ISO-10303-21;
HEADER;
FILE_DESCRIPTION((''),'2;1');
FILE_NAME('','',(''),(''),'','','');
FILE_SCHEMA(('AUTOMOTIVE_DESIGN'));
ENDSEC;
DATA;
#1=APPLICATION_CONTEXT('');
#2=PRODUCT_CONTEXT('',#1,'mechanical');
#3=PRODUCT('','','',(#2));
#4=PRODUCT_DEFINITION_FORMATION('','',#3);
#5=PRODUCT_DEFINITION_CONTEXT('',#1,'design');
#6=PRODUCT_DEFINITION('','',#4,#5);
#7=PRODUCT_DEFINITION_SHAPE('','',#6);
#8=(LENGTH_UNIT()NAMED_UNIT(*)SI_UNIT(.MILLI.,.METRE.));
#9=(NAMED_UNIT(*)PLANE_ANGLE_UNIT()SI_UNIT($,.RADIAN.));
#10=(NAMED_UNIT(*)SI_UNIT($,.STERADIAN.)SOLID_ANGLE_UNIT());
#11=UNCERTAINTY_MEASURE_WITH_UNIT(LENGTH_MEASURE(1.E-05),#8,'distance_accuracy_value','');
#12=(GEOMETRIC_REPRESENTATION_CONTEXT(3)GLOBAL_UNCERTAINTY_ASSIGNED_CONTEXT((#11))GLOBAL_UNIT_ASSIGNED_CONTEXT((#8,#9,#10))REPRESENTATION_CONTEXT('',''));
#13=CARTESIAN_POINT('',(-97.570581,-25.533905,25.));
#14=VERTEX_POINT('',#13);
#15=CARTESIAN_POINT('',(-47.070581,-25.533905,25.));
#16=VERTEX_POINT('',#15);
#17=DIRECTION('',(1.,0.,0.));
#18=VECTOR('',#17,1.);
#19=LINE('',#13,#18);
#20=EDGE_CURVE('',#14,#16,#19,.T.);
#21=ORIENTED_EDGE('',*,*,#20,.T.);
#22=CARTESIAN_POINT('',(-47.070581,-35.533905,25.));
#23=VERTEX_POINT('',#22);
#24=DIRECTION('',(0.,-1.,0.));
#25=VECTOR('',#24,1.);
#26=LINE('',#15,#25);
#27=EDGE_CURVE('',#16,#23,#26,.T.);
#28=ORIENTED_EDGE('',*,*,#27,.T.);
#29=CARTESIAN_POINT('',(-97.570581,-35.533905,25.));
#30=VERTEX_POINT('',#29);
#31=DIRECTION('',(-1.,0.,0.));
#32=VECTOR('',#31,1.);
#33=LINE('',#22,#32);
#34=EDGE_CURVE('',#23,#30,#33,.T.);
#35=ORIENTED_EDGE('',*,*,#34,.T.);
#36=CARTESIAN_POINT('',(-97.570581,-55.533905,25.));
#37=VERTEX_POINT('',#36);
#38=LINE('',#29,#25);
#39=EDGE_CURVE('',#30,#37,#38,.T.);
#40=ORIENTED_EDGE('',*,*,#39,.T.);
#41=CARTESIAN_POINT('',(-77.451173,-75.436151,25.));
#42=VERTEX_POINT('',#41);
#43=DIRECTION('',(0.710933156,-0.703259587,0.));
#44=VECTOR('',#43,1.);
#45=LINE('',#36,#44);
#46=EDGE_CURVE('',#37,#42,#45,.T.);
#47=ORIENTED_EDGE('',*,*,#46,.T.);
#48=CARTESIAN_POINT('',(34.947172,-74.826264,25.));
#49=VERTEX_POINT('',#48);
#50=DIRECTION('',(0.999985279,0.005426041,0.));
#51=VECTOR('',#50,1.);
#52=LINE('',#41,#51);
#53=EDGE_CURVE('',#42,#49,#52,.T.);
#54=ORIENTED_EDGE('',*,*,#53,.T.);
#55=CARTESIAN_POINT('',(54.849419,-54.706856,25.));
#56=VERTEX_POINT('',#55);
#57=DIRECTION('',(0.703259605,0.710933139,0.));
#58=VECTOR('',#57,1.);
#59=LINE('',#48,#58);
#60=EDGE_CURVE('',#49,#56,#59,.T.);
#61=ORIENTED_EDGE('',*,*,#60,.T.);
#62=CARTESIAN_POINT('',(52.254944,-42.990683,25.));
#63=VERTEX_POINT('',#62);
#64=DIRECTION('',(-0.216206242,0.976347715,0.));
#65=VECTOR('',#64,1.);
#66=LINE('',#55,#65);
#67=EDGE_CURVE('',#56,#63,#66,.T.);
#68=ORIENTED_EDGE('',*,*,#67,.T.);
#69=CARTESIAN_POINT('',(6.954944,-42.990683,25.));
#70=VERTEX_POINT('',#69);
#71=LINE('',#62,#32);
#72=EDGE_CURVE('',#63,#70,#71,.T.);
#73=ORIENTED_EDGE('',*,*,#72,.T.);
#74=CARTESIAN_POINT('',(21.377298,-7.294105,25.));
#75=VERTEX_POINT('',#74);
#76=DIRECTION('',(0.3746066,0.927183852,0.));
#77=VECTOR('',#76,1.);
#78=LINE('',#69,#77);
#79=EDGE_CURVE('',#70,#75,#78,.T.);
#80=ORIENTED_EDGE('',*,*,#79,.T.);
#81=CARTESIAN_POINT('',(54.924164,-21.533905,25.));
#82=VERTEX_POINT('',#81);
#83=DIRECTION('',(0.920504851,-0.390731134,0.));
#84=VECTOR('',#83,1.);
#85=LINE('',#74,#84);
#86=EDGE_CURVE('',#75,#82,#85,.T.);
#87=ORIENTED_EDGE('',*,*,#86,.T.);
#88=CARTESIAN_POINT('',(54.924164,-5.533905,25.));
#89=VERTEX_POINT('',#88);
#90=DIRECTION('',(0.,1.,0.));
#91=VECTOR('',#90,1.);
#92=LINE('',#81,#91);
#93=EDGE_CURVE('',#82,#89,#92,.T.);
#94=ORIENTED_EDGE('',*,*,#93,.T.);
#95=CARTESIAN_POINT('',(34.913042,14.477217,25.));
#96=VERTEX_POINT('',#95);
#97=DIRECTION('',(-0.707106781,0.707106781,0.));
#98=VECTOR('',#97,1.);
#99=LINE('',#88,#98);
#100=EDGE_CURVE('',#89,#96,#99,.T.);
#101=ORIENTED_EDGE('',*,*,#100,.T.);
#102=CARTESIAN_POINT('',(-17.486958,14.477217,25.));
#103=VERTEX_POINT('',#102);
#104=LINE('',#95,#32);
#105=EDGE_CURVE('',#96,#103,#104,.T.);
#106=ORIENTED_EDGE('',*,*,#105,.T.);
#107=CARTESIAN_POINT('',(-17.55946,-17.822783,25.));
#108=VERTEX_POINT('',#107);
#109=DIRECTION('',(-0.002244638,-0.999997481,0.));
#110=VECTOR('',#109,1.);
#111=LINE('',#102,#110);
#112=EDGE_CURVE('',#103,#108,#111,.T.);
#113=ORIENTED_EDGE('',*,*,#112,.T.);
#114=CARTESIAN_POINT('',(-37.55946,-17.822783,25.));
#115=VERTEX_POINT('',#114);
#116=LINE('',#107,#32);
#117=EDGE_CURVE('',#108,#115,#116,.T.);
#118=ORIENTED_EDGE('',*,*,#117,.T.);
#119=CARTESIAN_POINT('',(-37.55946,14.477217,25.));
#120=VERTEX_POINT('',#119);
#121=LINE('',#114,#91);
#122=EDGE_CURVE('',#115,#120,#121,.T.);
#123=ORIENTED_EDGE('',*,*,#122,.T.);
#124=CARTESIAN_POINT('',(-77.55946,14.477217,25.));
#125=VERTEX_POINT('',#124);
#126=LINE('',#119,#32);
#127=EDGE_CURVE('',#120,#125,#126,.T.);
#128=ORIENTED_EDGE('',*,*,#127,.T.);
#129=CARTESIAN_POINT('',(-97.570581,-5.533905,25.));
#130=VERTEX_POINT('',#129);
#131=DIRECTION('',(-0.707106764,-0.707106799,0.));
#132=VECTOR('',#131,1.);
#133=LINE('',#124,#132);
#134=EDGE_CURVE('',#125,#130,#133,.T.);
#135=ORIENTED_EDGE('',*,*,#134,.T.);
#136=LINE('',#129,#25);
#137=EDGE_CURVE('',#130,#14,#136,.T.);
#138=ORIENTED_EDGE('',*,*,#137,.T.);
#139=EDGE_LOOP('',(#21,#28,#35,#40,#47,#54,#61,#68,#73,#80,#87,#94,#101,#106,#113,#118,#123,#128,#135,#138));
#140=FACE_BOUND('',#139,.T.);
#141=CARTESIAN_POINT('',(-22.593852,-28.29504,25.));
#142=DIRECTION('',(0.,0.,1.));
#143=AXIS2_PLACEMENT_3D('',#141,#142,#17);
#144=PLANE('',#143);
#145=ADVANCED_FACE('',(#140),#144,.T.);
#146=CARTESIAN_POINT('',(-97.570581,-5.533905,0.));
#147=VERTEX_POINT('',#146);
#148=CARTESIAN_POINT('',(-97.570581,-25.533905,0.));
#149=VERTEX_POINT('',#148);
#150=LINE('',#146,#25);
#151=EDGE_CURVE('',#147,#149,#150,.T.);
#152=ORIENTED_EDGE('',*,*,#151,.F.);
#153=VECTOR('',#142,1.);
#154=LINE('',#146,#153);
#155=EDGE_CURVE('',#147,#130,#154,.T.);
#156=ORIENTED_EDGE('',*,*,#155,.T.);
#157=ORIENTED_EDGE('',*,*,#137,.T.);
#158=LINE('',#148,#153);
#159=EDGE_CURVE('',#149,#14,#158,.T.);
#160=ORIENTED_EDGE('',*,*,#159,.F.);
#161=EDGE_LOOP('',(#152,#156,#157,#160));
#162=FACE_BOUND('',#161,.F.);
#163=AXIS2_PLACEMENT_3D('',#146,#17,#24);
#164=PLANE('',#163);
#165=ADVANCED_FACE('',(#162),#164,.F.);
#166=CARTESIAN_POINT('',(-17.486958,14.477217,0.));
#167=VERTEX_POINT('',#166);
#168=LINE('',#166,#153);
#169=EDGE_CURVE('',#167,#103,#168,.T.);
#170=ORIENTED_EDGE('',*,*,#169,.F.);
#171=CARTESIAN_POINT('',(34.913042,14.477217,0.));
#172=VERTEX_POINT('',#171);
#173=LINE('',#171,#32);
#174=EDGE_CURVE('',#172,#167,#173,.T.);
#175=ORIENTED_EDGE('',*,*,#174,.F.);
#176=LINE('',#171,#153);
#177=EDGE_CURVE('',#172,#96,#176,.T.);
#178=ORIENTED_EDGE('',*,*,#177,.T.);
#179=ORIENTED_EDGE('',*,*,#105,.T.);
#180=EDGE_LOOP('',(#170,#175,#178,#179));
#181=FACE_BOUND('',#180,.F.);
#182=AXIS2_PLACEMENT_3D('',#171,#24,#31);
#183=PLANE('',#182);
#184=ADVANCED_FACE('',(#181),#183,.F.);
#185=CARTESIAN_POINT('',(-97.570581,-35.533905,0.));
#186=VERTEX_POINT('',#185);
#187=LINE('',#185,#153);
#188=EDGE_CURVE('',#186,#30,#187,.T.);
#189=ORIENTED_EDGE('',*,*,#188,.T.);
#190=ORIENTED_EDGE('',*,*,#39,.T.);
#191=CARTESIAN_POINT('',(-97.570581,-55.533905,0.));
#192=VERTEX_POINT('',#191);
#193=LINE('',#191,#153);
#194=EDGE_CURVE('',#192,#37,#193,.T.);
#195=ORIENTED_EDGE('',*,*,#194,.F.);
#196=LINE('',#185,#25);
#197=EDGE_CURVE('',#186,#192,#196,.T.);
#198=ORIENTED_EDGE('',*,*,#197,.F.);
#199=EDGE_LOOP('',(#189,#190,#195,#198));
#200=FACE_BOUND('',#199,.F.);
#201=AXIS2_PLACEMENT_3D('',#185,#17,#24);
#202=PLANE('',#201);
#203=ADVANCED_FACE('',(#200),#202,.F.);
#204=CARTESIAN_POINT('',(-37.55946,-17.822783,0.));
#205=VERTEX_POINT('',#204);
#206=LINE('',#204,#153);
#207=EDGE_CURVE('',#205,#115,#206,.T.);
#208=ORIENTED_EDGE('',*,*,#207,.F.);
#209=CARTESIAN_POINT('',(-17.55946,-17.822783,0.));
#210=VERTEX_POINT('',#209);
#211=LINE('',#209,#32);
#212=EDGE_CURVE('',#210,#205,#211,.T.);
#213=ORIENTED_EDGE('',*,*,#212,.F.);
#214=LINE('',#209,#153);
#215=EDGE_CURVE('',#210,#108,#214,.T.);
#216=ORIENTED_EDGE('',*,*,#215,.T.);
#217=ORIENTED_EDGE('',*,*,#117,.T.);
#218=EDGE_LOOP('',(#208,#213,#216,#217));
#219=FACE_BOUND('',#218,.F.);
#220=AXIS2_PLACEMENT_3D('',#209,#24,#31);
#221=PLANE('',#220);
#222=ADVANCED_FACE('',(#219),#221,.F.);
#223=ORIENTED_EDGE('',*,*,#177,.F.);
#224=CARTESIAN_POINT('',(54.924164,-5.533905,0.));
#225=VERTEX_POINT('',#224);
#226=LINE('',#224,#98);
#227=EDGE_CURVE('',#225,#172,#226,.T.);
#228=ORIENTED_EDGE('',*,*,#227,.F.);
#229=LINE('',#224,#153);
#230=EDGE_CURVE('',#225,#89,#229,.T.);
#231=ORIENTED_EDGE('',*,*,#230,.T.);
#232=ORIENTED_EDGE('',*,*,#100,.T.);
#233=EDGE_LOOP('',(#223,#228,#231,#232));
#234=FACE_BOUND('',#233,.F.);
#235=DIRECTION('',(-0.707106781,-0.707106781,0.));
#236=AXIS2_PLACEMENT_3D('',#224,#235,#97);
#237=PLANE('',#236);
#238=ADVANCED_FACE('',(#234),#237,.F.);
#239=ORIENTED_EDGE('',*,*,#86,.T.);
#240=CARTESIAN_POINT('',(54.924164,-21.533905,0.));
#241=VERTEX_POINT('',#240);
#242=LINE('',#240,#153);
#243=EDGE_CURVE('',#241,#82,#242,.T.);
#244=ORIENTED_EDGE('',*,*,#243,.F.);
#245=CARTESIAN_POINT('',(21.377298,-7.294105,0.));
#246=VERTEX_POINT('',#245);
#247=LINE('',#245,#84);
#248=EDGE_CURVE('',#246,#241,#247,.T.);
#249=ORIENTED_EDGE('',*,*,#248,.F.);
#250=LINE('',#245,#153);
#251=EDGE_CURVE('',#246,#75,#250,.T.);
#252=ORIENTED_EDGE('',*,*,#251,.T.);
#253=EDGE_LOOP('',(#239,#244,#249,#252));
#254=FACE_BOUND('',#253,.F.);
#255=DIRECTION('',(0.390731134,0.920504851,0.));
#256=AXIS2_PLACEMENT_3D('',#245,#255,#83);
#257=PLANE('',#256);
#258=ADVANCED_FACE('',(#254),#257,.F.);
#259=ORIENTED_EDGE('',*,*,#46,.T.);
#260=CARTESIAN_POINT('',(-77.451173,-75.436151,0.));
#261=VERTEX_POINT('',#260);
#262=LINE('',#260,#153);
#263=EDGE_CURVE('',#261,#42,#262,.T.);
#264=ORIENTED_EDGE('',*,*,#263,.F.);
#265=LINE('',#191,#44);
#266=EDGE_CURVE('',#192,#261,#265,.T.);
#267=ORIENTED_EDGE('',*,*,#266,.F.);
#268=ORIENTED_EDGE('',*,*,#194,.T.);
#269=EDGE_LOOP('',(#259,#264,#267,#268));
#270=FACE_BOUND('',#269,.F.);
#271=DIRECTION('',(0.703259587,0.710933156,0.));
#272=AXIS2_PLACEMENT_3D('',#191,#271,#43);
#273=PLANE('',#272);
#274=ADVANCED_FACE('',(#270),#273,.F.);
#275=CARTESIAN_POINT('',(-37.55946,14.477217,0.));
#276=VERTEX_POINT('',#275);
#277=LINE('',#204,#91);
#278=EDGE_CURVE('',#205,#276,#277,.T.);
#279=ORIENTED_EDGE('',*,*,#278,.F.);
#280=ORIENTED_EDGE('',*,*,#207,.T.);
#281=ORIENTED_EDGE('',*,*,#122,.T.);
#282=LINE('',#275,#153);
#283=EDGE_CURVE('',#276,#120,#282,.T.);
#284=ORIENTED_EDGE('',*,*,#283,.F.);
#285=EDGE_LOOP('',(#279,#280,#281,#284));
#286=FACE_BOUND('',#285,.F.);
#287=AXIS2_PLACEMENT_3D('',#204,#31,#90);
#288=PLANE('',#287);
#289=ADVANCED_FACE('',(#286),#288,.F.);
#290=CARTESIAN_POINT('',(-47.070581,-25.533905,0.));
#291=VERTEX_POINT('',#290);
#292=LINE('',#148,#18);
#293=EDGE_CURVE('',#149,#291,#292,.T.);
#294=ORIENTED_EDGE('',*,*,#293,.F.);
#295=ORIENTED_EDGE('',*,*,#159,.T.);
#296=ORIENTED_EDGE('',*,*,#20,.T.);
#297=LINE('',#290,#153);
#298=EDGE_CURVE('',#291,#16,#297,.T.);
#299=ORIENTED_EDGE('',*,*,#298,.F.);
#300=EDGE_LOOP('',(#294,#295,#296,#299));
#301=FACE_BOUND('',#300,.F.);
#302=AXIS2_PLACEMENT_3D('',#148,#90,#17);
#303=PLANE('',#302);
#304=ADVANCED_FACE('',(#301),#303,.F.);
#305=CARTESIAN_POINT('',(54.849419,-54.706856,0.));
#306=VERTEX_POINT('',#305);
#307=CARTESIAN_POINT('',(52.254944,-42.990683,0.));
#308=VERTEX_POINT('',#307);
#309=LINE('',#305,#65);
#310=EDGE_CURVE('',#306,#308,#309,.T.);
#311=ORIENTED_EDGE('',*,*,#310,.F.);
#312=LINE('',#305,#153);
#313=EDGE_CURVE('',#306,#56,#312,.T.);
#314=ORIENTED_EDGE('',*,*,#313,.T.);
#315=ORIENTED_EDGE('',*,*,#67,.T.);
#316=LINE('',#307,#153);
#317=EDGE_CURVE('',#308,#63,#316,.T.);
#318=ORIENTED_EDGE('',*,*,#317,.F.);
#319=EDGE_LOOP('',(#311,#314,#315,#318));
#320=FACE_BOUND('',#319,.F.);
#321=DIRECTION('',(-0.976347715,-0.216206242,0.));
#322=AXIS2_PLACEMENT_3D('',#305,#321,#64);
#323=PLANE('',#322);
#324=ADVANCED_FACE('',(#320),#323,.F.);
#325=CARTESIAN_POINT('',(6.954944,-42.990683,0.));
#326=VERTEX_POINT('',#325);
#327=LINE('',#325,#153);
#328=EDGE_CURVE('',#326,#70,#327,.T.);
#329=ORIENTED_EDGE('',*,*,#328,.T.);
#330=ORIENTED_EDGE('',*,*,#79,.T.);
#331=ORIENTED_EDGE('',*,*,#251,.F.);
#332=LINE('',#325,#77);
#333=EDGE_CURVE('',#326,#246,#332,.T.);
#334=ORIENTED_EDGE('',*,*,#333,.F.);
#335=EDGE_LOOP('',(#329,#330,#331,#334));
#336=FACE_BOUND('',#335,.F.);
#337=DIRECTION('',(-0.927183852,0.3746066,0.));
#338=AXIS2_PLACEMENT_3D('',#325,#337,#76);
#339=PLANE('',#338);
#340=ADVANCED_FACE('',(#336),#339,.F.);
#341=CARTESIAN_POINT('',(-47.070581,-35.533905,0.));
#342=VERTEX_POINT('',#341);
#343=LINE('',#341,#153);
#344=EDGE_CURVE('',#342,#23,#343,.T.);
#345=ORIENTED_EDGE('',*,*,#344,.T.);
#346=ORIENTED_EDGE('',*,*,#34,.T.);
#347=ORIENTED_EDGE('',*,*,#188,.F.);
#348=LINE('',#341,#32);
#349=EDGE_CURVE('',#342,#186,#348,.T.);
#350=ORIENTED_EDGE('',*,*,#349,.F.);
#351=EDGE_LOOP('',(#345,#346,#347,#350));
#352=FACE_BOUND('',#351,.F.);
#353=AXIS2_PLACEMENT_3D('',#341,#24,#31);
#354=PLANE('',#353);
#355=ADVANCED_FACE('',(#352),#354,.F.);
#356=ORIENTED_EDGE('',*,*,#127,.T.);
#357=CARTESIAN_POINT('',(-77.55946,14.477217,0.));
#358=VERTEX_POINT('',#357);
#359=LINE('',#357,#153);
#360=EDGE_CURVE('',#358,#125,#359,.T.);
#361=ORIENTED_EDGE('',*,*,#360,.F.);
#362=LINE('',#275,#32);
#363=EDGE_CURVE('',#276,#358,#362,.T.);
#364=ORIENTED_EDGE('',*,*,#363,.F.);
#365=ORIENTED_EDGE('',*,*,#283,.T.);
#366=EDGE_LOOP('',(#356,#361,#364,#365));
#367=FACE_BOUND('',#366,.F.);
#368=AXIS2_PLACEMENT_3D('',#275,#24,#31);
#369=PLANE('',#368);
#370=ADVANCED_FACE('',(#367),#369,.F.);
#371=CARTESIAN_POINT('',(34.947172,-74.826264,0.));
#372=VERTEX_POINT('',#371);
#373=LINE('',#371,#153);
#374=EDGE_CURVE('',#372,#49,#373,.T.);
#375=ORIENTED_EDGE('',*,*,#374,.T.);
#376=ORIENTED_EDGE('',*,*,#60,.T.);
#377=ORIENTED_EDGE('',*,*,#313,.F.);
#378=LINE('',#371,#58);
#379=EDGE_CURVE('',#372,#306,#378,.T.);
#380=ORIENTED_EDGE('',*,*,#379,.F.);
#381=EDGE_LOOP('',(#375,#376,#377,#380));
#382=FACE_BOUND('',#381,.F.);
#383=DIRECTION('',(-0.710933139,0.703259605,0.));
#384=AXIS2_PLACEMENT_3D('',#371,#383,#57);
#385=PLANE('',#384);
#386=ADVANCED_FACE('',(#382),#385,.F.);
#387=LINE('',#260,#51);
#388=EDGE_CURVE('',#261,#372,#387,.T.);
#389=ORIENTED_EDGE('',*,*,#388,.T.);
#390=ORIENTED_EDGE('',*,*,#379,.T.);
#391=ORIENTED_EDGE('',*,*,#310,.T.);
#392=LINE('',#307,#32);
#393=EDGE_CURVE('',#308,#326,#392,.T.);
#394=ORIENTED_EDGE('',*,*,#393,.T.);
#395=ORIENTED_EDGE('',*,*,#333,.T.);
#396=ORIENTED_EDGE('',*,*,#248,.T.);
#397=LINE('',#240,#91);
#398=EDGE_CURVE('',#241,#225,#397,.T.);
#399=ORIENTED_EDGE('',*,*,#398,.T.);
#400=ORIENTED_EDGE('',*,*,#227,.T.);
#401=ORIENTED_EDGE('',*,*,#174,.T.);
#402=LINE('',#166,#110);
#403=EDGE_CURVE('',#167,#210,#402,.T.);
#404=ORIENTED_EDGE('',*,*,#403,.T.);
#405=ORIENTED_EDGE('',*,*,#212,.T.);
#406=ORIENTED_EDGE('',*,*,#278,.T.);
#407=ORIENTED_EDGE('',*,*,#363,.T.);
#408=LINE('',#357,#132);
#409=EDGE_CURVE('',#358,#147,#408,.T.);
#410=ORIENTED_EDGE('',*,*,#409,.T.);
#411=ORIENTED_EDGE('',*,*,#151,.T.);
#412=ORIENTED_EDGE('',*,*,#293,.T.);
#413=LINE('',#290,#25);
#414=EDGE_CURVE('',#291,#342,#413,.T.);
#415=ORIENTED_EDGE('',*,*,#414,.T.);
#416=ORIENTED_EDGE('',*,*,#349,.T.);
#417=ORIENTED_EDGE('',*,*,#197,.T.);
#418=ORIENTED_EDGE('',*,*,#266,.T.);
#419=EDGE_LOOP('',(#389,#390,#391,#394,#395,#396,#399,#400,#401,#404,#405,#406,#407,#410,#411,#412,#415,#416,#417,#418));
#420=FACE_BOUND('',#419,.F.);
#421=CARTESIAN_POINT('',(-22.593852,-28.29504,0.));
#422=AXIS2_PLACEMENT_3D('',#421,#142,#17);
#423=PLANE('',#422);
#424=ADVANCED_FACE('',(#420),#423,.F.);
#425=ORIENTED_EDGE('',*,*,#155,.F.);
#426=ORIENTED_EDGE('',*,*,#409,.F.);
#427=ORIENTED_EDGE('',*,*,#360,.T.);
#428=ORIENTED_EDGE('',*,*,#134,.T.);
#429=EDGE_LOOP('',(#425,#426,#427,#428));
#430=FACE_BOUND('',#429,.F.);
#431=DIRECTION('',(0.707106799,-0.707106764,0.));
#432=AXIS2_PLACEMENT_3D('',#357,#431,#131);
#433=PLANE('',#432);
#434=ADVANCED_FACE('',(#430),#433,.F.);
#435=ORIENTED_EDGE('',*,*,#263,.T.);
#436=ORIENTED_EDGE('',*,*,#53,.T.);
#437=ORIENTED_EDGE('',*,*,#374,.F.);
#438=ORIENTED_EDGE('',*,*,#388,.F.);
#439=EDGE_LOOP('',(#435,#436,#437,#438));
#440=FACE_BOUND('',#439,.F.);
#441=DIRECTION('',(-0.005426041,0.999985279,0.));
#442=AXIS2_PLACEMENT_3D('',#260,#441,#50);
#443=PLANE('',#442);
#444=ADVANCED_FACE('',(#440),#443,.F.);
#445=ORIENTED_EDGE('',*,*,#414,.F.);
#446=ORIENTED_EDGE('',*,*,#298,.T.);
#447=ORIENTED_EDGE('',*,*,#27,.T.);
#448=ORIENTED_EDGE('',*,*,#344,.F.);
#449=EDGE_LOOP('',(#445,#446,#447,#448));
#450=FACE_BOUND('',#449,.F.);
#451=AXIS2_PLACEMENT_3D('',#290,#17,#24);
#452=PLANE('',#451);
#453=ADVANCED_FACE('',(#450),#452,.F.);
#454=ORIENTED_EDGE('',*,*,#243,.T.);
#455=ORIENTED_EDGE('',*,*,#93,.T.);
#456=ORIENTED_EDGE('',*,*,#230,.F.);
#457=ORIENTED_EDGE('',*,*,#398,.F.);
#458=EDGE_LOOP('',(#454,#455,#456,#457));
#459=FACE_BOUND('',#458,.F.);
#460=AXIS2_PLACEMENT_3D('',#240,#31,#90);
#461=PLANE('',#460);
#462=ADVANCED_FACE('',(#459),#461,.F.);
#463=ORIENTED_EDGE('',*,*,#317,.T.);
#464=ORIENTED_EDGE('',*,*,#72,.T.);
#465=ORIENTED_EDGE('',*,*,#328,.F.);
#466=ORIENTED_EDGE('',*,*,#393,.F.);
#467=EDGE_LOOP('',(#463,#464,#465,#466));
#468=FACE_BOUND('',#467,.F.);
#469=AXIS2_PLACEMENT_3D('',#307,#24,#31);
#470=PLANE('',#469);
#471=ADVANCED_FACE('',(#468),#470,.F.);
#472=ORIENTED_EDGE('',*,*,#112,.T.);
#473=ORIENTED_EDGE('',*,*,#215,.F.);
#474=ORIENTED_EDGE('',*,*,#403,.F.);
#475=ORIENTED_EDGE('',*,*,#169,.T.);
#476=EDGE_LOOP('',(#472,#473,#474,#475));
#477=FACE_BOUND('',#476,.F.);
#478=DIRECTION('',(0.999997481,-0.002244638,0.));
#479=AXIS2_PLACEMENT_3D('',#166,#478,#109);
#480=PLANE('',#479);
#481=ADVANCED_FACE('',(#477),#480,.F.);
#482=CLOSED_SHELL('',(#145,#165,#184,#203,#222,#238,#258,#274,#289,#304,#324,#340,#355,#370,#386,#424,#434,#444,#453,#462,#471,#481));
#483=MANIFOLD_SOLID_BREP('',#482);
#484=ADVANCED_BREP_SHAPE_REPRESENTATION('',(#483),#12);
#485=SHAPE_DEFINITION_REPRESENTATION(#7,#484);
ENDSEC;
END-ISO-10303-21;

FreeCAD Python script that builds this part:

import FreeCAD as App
import Part
import Sketcher

V = App.Vector
Q = App.Units.Quantity


def add_polygon(sketch, points):
    """Adds a closed chain of lines whose ends are joined by coincident constraints."""
    first, n = sketch.GeometryCount, len(points)
    for a, b in zip(points, points[1:] + points[:1]):
        sketch.addGeometry(Part.LineSegment(App.Vector(*a, 0), App.Vector(*b, 0)), False)
    for i in range(n):
        sketch.addConstraint(Sketcher.Constraint("Coincident", first + i, 2, first + (i + 1) % n, 1))

doc = App.newDocument("Part")
body = doc.addObject("PartDesign::Body", "Body")

# Sketch on XY plane
sketch1 = body.newObject("Sketcher::SketchObject", "Sketch")
sketch1.AttachmentSupport = (doc.getObject("XY_Plane"), [""])
sketch1.MapMode = "FlatFace"
add_polygon(sketch1, [(-97.570581, -55.533905), (-77.451173, -75.436151), (34.947172, -74.826264), (54.849419, -54.706856), (52.254944, -42.990683), (6.954944, -42.990683), (21.377298, -7.294105), (54.924164, -21.533905), (54.924164, -5.533905), (34.913042, 14.477217), (-17.486958, 14.477217), (-17.55946, -17.822783), (-37.55946, -17.822783), (-37.55946, 14.477217), (-77.55946, 14.477217), (-97.570581, -5.533905), (-97.570581, -25.533905), (-47.070581, -25.533905), (-47.070581, -35.533905), (-97.570581, -35.533905)])  # lines 0-19
sketch1.addConstraint(Sketcher.Constraint("Horizontal", 4))
sketch1.addConstraint(Sketcher.Constraint("Vertical", 7))
sketch1.addConstraint(Sketcher.Constraint("Horizontal", 9))
sketch1.addConstraint(Sketcher.Constraint("Horizontal", 11))
sketch1.addConstraint(Sketcher.Constraint("Vertical", 12))
sketch1.addConstraint(Sketcher.Constraint("Horizontal", 13))
sketch1.addConstraint(Sketcher.Constraint("Vertical", 15))
sketch1.addConstraint(Sketcher.Constraint("Horizontal", 16))
sketch1.addConstraint(Sketcher.Constraint("Vertical", 17))
sketch1.addConstraint(Sketcher.Constraint("Horizontal", 18))
sketch1.addConstraint(Sketcher.Constraint("Vertical", 19))
sketch1.addConstraint(Sketcher.Constraint("Perpendicular", 0, 2))
sketch1.addConstraint(Sketcher.Constraint("Perpendicular", 8, 14))
sketch1.addConstraint(Sketcher.Constraint("Horizontal", 9, 2, 12, 2))
sketch1.addConstraint(Sketcher.Constraint("Horizontal", 7, 2, 14, 2))
sketch1.addConstraint(Sketcher.Constraint("Vertical", 15, 2, 18, 2))
sketch1.addConstraint(Sketcher.Constraint("Equal", 11, 15))
sketch1.addConstraint(Sketcher.Constraint("Equal", 15, 19))
sketch1.addConstraint(Sketcher.Constraint("Equal", 0, 2))
sketch1.addConstraint(Sketcher.Constraint("Equal", 2, 8))
sketch1.addConstraint(Sketcher.Constraint("Equal", 8, 14))
sketch1.addConstraint(Sketcher.Constraint("DistanceX", 11, 2, 11, 1, Q("20 mm")))
sketch1.addConstraint(Sketcher.Constraint("DistanceX", 13, 2, 13, 1, Q("40 mm")))
sketch1.addConstraint(Sketcher.Constraint("DistanceY", 7, 1, 7, 2, Q("16 mm")))
sketch1.addConstraint(Sketcher.Constraint("DistanceY", 17, 2, 17, 1, Q("10 mm")))
sketch1.addConstraint(Sketcher.Constraint("Angle", 5, Q("68 deg")))
sketch1.addConstraint(Sketcher.Constraint("Angle", 6, Q("-23 deg")))
sketch1.addConstraint(Sketcher.Constraint("Distance", 3, Q("12 mm")))
sketch1.addConstraint(Sketcher.Constraint("DistanceX", 4, 2, 4, 1, Q("45.3 mm")))
sketch1.addConstraint(Sketcher.Constraint("DistanceX", 9, 2, 9, 1, Q("52.4 mm")))
sketch1.addConstraint(Sketcher.Constraint("DistanceX", 16, 1, 16, 2, Q("50.5 mm")))
sketch1.addConstraint(Sketcher.Constraint("DistanceY", 12, 1, 12, 2, Q("32.3 mm")))
sketch1.addConstraint(Sketcher.Constraint("Distance", 0, Q("28.3 mm")))
sketch1.addConstraint(Sketcher.Constraint("Distance", 1, Q("112.4 mm")))
sketch1.addConstraint(Sketcher.Constraint("Distance", 5, Q("38.5 mm")))
sketch1.addConstraint(Sketcher.Constraint("DistanceY", 6, 2, 5, 2, Q("14.2398 mm")))
sketch1.addConstraint(Sketcher.Constraint("DistanceX", 11, 2, 9, 2, Q("20.072502 mm")))
sketch1.addConstraint(Sketcher.Constraint("DistanceY", 0, 2, -1, 1, Q("75.436151 mm")))
sketch1.addConstraint(Sketcher.Constraint("DistanceX", -1, 1, 2, 2, Q("54.849419 mm")))
sketch1.addConstraint(Sketcher.Constraint("DistanceX", 0, 2, 2, 2, Q("132.300592 mm")))
pad1 = body.newObject("PartDesign::Pad", "Pad")
pad1.Profile = sketch1
pad1.Length = 25

doc.recompute()
